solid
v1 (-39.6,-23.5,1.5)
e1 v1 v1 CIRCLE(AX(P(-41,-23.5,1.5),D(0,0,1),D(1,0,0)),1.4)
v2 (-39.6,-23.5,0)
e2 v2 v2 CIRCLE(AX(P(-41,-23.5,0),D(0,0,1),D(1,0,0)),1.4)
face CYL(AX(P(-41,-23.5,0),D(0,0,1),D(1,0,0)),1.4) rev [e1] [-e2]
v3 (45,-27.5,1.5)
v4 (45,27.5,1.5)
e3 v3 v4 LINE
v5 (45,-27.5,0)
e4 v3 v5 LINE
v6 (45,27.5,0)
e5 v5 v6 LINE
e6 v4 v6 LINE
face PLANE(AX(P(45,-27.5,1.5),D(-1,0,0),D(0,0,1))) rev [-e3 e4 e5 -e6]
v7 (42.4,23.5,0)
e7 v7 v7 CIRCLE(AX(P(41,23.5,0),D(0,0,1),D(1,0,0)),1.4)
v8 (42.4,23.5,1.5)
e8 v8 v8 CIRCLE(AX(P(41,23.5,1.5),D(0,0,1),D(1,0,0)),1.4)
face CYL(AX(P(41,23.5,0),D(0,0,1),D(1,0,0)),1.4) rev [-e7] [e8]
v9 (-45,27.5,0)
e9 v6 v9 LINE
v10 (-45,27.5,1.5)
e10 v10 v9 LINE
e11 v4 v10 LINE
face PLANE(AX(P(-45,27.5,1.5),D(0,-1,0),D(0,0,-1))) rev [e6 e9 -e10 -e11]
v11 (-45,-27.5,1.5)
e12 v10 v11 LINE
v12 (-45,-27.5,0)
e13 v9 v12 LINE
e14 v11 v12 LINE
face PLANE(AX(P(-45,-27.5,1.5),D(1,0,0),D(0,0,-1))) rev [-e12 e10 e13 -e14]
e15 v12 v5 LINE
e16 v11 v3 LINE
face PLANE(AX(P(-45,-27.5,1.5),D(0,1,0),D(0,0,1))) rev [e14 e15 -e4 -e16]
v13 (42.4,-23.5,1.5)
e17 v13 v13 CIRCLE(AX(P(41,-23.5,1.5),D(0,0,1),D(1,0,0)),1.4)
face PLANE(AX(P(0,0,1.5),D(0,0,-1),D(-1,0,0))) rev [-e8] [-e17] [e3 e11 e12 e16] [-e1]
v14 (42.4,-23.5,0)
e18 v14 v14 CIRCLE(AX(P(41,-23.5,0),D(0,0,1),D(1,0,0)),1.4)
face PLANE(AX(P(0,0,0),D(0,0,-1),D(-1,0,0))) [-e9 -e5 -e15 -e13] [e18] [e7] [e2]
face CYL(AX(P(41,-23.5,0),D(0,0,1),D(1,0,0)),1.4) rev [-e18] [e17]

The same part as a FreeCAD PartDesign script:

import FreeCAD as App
import Part
import Sketcher

V = App.Vector
Q = App.Units.Quantity


def add_polygon(sketch, points):
    """Adds a closed chain of lines whose ends are joined by coincident constraints."""
    first, n = sketch.GeometryCount, len(points)
    for a, b in zip(points, points[1:] + points[:1]):
        sketch.addGeometry(Part.LineSegment(App.Vector(*a, 0), App.Vector(*b, 0)), False)
    for i in range(n):
        sketch.addConstraint(Sketcher.Constraint("Coincident", first + i, 2, first + (i + 1) % n, 1))

doc = App.newDocument("Part")
body = doc.addObject("PartDesign::Body", "Body")

sketch1 = body.newObject("Sketcher::SketchObject", "Sketch")
sketch1.AttachmentSupport = (doc.getObject("XY_Plane"), [""])
sketch1.MapMode = "FlatFace"
add_polygon(sketch1, [(-45, 28), (-45, -28), (45, -28), (45, 28)])
sketch1.addConstraint(Sketcher.Constraint("Vertical", 0))
sketch1.addConstraint(Sketcher.Constraint("Horizontal", 1))
sketch1.addConstraint(Sketcher.Constraint("Vertical", 2))
sketch1.addConstraint(Sketcher.Constraint("Horizontal", 3))
sketch1.addConstraint(Sketcher.Constraint("Symmetric", 0, 2, 2, 2, -1, 1))
sketch1.addConstraint(Sketcher.Constraint("DistanceX", 1, 1, 1, 2, Q("90 mm")))
sketch1.addConstraint(Sketcher.Constraint("DistanceY", 0, 2, 0, 1, Q("55 mm")))
pad1 = body.newObject("PartDesign::Pad", "Pad")
pad1.Profile = sketch1
pad1.Length = 1.5

sketch2 = body.newObject("Sketcher::SketchObject", "Sketch001")
sketch2.AttachmentSupport = (doc.getObject("XY_Plane"), [""])
sketch2.MapMode = "FlatFace"
sketch2.AttachmentOffset = App.Placement(V(0, 0, 1.5), App.Rotation())
sketch2.addGeometry(Part.Circle(V(41, -23.5, 0), V(0, 0, 1), 1.4), False)
sketch2.addGeometry(Part.Circle(V(-41, -23.5, 0), V(0, 0, 1), 1.4), False)
sketch2.addGeometry(Part.Circle(V(41, 23.5, 0), V(0, 0, 1), 1.4), False)
sketch2.addConstraint(Sketcher.Constraint("Equal", 0, 1))
sketch2.addConstraint(Sketcher.Constraint("Equal", 1, 2))
sketch2.addConstraint(Sketcher.Constraint("Symmetric", 1, 3, 2, 3, -1, 1))
sketch2.addConstraint(Sketcher.Constraint("Symmetric", 0, 3, 1, 3, -2))
sketch2.addConstraint(Sketcher.Constraint("Diameter", 0, Q("2.8 mm")))
sketch2.addConstraint(Sketcher.Constraint("DistanceX", -1, 1, 0, 3, Q("41 mm")))
sketch2.addConstraint(Sketcher.Constraint("DistanceY", 0, 3, 2, 3, Q("47 mm")))
pocket1 = body.newObject("PartDesign::Pocket", "Pocket")
pocket1.Profile = sketch2
pocket1.Length = 1.5

doc.recompute()
